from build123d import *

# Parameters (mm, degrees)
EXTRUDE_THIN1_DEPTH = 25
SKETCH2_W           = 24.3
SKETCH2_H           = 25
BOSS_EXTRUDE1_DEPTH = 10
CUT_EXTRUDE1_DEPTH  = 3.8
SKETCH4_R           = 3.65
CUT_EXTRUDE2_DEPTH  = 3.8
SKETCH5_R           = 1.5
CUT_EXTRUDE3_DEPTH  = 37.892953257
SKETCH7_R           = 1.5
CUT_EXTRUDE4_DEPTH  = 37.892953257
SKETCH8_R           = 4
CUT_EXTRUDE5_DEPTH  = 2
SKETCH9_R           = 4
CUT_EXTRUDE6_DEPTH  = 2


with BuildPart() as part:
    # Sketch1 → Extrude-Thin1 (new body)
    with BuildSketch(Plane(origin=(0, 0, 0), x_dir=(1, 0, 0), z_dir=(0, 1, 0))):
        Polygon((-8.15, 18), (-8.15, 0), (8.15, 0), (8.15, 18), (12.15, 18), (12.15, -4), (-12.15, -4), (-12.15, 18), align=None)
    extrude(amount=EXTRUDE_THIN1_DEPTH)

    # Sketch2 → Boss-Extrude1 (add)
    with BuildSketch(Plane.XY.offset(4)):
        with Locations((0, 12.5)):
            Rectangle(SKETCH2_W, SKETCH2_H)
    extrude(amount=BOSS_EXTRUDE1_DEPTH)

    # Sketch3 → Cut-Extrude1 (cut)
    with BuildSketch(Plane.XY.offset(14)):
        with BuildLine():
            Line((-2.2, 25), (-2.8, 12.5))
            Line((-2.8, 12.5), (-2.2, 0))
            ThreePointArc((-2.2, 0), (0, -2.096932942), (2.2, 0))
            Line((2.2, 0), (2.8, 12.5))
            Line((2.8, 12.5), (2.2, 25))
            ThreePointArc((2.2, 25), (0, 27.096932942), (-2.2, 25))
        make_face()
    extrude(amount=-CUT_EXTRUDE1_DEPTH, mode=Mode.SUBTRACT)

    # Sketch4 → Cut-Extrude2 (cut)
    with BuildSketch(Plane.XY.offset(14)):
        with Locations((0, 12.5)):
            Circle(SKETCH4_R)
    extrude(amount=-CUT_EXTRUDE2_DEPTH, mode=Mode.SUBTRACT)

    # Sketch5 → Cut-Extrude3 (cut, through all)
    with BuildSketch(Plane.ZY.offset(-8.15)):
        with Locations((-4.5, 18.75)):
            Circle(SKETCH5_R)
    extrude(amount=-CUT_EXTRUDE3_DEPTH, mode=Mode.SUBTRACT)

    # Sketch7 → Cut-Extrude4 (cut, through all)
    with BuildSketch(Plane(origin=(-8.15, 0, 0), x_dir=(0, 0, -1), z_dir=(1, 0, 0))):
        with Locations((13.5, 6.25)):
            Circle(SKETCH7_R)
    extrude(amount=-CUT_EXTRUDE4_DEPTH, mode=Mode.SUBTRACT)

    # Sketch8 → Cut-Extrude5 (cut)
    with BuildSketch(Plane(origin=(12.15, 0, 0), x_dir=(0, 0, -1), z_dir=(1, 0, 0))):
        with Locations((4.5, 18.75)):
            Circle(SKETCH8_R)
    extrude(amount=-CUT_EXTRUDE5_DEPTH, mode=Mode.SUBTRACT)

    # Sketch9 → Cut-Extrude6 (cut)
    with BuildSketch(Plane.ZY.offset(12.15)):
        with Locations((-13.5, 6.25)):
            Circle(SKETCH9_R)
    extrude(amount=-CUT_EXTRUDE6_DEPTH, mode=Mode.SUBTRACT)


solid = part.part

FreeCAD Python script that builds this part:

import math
import FreeCAD as App
import Part
import Sketcher

V = App.Vector

doc = App.newDocument("Part")
body = doc.addObject("PartDesign::Body", "Body")

sketch1 = body.newObject("Sketcher::SketchObject", "Sketch")
sketch1.AttachmentSupport = (doc.getObject("XZ_Plane"), [""])
sketch1.MapMode = "FlatFace"
sketch1.addGeometry([
    Part.LineSegment(V(-8.2, 0, 0), V(-8.2, -18, 0)),
    Part.LineSegment(V(-8.2, -18, 0), V(-12.2, -18, 0)),
    Part.LineSegment(V(-12.2, -18, 0), V(-12.2, 4, 0)),
    Part.LineSegment(V(-12.2, 4, 0), V(12.2, 4, 0)),
    Part.LineSegment(V(12.2, 4, 0), V(12.2, -18, 0)),
    Part.LineSegment(V(12.2, -18, 0), V(8.2, -18, 0)),
    Part.LineSegment(V(8.2, -18, 0), V(8.2, 0, 0)),
    Part.LineSegment(V(8.2, 0, 0), V(-8.2, 0, 0)),
], False)
sketch1.addConstraint([
    Sketcher.Constraint("Coincident", 0, 2, 1, 1),
    Sketcher.Constraint("Coincident", 1, 2, 2, 1),
    Sketcher.Constraint("Coincident", 2, 2, 3, 1),
    Sketcher.Constraint("Coincident", 3, 2, 4, 1),
    Sketcher.Constraint("Coincident", 4, 2, 5, 1),
    Sketcher.Constraint("Coincident", 5, 2, 6, 1),
    Sketcher.Constraint("Coincident", 6, 2, 7, 1),
    Sketcher.Constraint("Coincident", 7, 2, 0, 1),
    Sketcher.Constraint("Vertical", 0),
    Sketcher.Constraint("Horizontal", 1),
    Sketcher.Constraint("Vertical", 2),
    Sketcher.Constraint("Horizontal", 3),
    Sketcher.Constraint("Vertical", 4),
    Sketcher.Constraint("Horizontal", 5),
    Sketcher.Constraint("Vertical", 6),
    Sketcher.Constraint("Horizontal", 7),
    Sketcher.Constraint("Symmetric", 6, 2, 7, 2, -1, 1),
    Sketcher.Constraint("Symmetric", 1, 2, 4, 2, -2),
    Sketcher.Constraint("DistanceX", 1, 2, 1, 1, 4.0),
    Sketcher.Constraint("DistanceY", 0, 2, 0, 1, 18.0),
    Sketcher.Constraint("DistanceY", 2, 1, 2, 2, 22.0),
    Sketcher.Constraint("DistanceX", 3, 1, 3, 2, 24.3),
])
pad1 = body.newObject("PartDesign::Pad", "Pad")
pad1.Profile = sketch1
pad1.Length = 25
pad1.Reversed = True

sketch2 = body.newObject("Sketcher::SketchObject", "Sketch001")
sketch2.AttachmentSupport = (doc.getObject("XY_Plane"), [""])
sketch2.MapMode = "FlatFace"
sketch2.AttachmentOffset = App.Placement(V(0, 0, 4), App.Rotation())
sketch2.addGeometry([
    Part.LineSegment(V(-12, 25, 0), V(-12, 0, 0)),
    Part.LineSegment(V(-12, 0, 0), V(12, 0, 0)),
    Part.LineSegment(V(12, 0, 0), V(12, 25, 0)),
    Part.LineSegment(V(12, 25, 0), V(-12, 25, 0)),
], False)
sketch2.addConstraint([
    Sketcher.Constraint("Coincident", 0, 2, 1, 1),
    Sketcher.Constraint("Coincident", 1, 2, 2, 1),
    Sketcher.Constraint("Coincident", 2, 2, 3, 1),
    Sketcher.Constraint("Coincident", 3, 2, 0, 1),
    Sketcher.Constraint("Vertical", 0),
    Sketcher.Constraint("Horizontal", 1),
    Sketcher.Constraint("Vertical", 2),
    Sketcher.Constraint("Horizontal", 3),
    Sketcher.Constraint("Symmetric", 0, 2, 1, 2, -1, 1),
    Sketcher.Constraint("DistanceY", 0, 2, 0, 1, 25.0),
    Sketcher.Constraint("DistanceX", 1, 1, 1, 2, 24.3),
])
pad2 = body.newObject("PartDesign::Pad", "Pad001")
pad2.Profile = sketch2
pad2.Length = 10

sketch3 = body.newObject("Sketcher::SketchObject", "Sketch002")
sketch3.AttachmentSupport = (doc.getObject("XY_Plane"), [""])
sketch3.MapMode = "FlatFace"
sketch3.AttachmentOffset = App.Placement(V(0, 0, 14), App.Rotation())
sketch3.addGeometry([
    Part.LineSegment(V(-2.2, 25, 0), V(-2.8, 12.5, 0)),
    Part.LineSegment(V(-2.8, 12.5, 0), V(-2.2, 0, 0)),
    Part.ArcOfCircle(Part.Circle(V(0, 0.1, 0), V(0, 0, 1), 2.2), math.radians(-177), math.radians(-3)),
    Part.LineSegment(V(2.2, 0, 0), V(2.8, 12.5, 0)),
    Part.LineSegment(V(2.8, 12.5, 0), V(2.2, 25, 0)),
    Part.ArcOfCircle(Part.Circle(V(0, 24.9, 0), V(0, 0, 1), 2.2), math.radians(3), math.radians(177)),
], False)
sketch3.addConstraint([
    Sketcher.Constraint("Coincident", 0, 2, 1, 1),
    Sketcher.Constraint("Tangent", 1, 2, 2, 1),
    Sketcher.Constraint("Tangent", 2, 2, 3, 1),
    Sketcher.Constraint("Coincident", 3, 2, 4, 1),
    Sketcher.Constraint("Tangent", 4, 2, 5, 1),
    Sketcher.Constraint("Tangent", 5, 2, 0, 1),
    Sketcher.Constraint("Equal", 2, 5),
    Sketcher.Constraint("Symmetric", 1, 2, 2, 2, -1, 1),
    Sketcher.Constraint("Symmetric", 0, 2, 3, 2, -2),
    Sketcher.Constraint("PointOnObject", 5, 3, -2),
    Sketcher.Constraint("Parallel", 0, 3),
    Sketcher.Constraint("DistanceY", -1, 1, 4, 2, 25.0),
    Sketcher.Constraint("DistanceX", 0, 2, 2, 2, 5.0),
    Sketcher.Constraint("DistanceX", 0, 2, -1, 1, 2.8),
])
pocket1 = body.newObject("PartDesign::Pocket", "Pocket")
pocket1.Profile = sketch3
pocket1.Length = 3.8

sketch4 = body.newObject("Sketcher::SketchObject", "Sketch003")
sketch4.AttachmentSupport = (doc.getObject("XY_Plane"), [""])
sketch4.MapMode = "FlatFace"
sketch4.AttachmentOffset = App.Placement(V(0, 0, 14), App.Rotation())
sketch4.addGeometry(Part.Circle(V(0, 12.5, 0), V(0, 0, 1), 3.6), False)
sketch4.addConstraint([
    Sketcher.Constraint("PointOnObject", 0, 3, -2),
    Sketcher.Constraint("Diameter", 0, 7.3),
    Sketcher.Constraint("DistanceY", -1, 1, 0, 3, 12.5),
])
pocket2 = body.newObject("PartDesign::Pocket", "Pocket001")
pocket2.Profile = sketch4
pocket2.Length = 3.8

sketch5 = body.newObject("Sketcher::SketchObject", "Sketch004")
sketch5.AttachmentSupport = (doc.getObject("YZ_Plane"), [""])
sketch5.MapMode = "FlatFace"
sketch5.AttachmentOffset = App.Placement(V(0, 0, 8.15), App.Rotation())
sketch5.addGeometry(Part.Circle(V(18.8, -4.5, 0), V(0, 0, 1), 1.5), False)
sketch5.addConstraint([
    Sketcher.Constraint("Diameter", 0, 3.0),
    Sketcher.Constraint("DistanceY", 0, 3, -1, 1, 4.5),
    Sketcher.Constraint("DistanceX", -1, 1, 0, 3, 18.75),
])
pocket3 = body.newObject("PartDesign::Pocket", "Pocket002")
pocket3.Profile = sketch5
pocket3.Type = "ThroughAll"
pocket3.Reversed = True

sketch6 = body.newObject("Sketcher::SketchObject", "Sketch005")
sketch6.AttachmentSupport = (doc.getObject("YZ_Plane"), [""])
sketch6.MapMode = "FlatFace"
sketch6.AttachmentOffset = App.Placement(V(0, 0, -8.15), App.Rotation())
sketch6.addGeometry(Part.Circle(V(6.2, -13.5, 0), V(0, 0, 1), 1.5), False)
sketch6.addConstraint([
    Sketcher.Constraint("Diameter", 0, 3.0),
    Sketcher.Constraint("DistanceY", 0, 3, -1, 1, 13.5),
    Sketcher.Constraint("DistanceX", -1, 1, 0, 3, 6.25),
])
pocket4 = body.newObject("PartDesign::Pocket", "Pocket003")
pocket4.Profile = sketch6
pocket4.Type = "ThroughAll"

sketch7 = body.newObject("Sketcher::SketchObject", "Sketch006")
sketch7.AttachmentSupport = (doc.getObject("YZ_Plane"), [""])
sketch7.MapMode = "FlatFace"
sketch7.AttachmentOffset = App.Placement(V(0, 0, 12.15), App.Rotation())
sketch7.addGeometry(Part.Circle(V(18.8, -4.5, 0), V(0, 0, 1), 4), False)
sketch7.addConstraint([
    Sketcher.Constraint("Diameter", 0, 8.0),
    Sketcher.Constraint("DistanceY", 0, 3, -1, 1, 4.5),
    Sketcher.Constraint("DistanceX", -1, 1, 0, 3, 18.75),
])
pocket5 = body.newObject("PartDesign::Pocket", "Pocket004")
pocket5.Profile = sketch7
pocket5.Length = 2

sketch8 = body.newObject("Sketcher::SketchObject", "Sketch007")
sketch8.AttachmentSupport = (doc.getObject("YZ_Plane"), [""])
sketch8.MapMode = "FlatFace"
sketch8.AttachmentOffset = App.Placement(V(0, 0, -12.15), App.Rotation())
sketch8.addGeometry(Part.Circle(V(6.2, -13.5, 0), V(0, 0, 1), 4), False)
sketch8.addConstraint([
    Sketcher.Constraint("Diameter", 0, 8.0),
    Sketcher.Constraint("DistanceY", 0, 3, -1, 1, 13.5),
    Sketcher.Constraint("DistanceX", -1, 1, 0, 3, 6.25),
])
pocket6 = body.newObject("PartDesign::Pocket", "Pocket005")
pocket6.Profile = sketch8
pocket6.Length = 2
pocket6.Reversed = True

doc.recompute()
